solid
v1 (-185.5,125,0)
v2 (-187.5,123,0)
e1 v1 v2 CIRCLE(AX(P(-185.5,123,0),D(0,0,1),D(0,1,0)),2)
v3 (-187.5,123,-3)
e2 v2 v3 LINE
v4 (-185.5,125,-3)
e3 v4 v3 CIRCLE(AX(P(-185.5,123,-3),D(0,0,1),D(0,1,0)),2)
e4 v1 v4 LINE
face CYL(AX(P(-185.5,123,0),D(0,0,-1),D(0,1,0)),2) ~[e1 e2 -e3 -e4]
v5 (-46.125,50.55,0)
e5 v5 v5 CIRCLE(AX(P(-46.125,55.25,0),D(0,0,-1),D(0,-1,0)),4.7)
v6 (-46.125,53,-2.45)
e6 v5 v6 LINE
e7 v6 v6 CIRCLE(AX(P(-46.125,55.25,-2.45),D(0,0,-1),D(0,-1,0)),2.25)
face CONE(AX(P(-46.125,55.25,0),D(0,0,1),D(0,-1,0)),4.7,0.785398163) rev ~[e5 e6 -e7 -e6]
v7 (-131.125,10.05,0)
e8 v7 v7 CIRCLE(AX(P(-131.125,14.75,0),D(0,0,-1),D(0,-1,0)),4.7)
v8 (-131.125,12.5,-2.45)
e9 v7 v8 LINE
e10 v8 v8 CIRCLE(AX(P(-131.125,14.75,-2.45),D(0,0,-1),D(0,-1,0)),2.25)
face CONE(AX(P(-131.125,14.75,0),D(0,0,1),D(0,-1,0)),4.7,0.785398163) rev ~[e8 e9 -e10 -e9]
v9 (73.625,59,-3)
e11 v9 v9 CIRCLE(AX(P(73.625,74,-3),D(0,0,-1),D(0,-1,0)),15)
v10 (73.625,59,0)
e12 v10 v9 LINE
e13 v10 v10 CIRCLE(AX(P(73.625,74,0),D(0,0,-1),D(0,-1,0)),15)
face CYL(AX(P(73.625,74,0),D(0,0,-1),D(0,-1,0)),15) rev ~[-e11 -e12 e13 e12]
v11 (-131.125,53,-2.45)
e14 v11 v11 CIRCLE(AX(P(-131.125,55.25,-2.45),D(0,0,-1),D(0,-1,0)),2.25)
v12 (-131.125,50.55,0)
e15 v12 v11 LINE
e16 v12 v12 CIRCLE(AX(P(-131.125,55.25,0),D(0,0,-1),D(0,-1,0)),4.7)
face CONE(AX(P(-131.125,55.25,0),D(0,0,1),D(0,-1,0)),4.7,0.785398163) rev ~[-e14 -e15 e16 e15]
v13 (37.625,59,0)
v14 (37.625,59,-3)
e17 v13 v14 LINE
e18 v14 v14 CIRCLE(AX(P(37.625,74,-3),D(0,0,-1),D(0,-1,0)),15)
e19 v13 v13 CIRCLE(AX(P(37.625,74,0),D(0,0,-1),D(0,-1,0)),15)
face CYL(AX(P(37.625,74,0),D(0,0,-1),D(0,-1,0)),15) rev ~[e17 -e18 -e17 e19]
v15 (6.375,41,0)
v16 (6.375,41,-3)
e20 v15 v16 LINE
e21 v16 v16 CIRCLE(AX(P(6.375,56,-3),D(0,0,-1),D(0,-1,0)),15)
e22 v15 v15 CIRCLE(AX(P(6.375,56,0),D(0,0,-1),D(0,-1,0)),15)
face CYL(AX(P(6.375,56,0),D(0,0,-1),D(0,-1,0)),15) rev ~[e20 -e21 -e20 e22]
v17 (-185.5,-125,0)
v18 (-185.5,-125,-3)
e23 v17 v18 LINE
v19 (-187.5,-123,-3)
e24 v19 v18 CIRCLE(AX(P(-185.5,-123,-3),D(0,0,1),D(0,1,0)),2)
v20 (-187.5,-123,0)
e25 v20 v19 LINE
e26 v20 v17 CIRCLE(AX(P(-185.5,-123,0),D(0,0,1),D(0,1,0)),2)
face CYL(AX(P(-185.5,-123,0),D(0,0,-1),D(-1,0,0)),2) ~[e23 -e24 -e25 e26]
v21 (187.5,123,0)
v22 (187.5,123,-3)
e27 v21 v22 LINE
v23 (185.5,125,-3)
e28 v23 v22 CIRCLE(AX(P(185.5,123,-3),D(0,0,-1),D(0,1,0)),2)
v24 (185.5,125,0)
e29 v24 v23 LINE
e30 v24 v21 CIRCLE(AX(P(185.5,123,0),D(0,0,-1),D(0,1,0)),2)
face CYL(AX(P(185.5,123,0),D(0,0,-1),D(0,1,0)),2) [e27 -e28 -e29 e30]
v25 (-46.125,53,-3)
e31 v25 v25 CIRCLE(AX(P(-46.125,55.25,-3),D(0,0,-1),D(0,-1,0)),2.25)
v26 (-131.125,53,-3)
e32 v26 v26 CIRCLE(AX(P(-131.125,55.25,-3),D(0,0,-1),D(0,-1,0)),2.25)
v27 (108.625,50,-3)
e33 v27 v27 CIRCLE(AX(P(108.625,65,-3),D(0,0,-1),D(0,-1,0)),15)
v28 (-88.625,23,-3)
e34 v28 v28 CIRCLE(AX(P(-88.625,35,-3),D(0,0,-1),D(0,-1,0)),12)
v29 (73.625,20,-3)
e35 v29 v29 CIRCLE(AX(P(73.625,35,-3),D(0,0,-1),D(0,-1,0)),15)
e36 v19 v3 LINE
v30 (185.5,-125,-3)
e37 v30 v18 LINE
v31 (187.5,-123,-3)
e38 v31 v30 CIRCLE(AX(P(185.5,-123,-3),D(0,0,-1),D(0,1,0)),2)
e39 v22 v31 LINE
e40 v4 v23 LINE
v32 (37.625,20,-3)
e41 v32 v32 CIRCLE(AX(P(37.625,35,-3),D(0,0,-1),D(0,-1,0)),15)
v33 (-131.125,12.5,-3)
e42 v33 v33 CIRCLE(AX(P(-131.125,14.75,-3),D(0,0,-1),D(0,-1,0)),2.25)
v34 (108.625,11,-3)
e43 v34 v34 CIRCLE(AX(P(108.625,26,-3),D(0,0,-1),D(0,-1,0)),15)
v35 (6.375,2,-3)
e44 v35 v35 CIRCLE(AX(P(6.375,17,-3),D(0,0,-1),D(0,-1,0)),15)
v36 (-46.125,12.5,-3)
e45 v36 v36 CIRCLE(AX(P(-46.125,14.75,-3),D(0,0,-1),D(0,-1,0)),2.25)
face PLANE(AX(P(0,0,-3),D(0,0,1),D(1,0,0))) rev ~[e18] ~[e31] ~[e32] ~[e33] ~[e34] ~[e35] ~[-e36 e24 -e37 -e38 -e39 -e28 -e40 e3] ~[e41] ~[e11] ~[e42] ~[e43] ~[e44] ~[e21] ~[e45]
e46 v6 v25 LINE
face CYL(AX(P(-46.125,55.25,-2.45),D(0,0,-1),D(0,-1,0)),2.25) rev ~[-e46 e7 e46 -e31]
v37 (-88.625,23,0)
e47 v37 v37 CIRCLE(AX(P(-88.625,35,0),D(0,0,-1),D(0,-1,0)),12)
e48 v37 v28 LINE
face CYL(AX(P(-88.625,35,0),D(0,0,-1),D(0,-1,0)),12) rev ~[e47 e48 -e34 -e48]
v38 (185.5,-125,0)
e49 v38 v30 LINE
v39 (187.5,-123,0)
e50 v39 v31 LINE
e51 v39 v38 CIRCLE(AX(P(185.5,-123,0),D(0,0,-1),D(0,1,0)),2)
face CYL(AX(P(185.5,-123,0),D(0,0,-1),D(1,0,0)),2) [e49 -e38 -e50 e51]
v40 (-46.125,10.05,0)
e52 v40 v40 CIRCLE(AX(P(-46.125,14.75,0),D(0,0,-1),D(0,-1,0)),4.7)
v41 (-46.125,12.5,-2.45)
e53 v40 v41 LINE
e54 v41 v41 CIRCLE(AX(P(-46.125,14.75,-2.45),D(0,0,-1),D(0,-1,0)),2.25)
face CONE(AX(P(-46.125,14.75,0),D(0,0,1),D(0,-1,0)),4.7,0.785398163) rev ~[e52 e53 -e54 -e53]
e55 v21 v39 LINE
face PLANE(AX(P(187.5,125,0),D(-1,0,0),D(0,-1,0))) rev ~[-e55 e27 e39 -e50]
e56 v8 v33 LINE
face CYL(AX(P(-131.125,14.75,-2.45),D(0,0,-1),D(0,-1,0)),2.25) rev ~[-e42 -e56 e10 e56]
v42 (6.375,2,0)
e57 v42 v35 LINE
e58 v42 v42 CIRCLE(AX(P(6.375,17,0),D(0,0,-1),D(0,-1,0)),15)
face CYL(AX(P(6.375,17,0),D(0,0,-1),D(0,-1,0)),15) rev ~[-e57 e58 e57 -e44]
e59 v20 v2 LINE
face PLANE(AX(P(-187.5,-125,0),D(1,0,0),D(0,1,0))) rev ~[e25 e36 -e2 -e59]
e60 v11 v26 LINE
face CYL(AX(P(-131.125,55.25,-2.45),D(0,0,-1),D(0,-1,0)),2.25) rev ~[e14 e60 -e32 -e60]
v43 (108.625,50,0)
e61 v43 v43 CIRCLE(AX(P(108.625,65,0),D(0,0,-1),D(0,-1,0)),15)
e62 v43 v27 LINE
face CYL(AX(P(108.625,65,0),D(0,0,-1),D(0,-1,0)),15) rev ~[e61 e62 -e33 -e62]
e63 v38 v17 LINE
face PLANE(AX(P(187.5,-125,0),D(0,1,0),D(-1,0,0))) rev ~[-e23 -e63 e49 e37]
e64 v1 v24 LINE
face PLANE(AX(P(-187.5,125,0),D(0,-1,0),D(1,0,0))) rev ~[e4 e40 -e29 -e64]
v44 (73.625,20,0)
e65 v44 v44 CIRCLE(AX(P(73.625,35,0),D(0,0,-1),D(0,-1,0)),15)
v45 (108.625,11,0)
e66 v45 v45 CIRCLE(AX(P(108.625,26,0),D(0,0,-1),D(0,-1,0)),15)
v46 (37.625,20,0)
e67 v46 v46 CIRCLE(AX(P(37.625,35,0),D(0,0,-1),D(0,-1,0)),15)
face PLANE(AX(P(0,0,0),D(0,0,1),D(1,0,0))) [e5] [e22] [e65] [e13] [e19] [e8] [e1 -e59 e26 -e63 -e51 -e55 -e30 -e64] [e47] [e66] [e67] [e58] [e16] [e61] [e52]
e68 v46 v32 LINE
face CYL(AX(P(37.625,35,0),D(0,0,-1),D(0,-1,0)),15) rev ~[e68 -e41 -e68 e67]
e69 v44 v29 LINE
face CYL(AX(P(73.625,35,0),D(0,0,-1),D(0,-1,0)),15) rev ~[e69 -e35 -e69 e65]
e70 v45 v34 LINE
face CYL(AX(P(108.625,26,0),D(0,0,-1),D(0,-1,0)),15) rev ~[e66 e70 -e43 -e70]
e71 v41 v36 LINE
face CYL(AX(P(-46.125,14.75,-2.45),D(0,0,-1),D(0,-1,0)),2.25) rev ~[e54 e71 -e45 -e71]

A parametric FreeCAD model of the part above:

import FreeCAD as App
import Part
import Sketcher
Q = App.Units.Quantity


def edges_at(feature, points):
    """Names of the edges that pass closest to the given points."""
    edges = feature.Shape.Edges
    near = lambda p: min(range(len(edges)), key=lambda i: edges[i].distToShape(Part.Vertex(*p))[0])
    return sorted({f"Edge{near(p) + 1}" for p in points})


def add_polygon(sketch, points):
    """Adds a closed chain of lines whose ends are joined by coincident constraints."""
    first, n = sketch.GeometryCount, len(points)
    for a, b in zip(points, points[1:] + points[:1]):
        sketch.addGeometry(Part.LineSegment(App.Vector(*a, 0), App.Vector(*b, 0)), False)
    for i in range(n):
        sketch.addConstraint(Sketcher.Constraint("Coincident", first + i, 2, first + (i + 1) % n, 1))

doc = App.newDocument("Part")
body = doc.addObject("PartDesign::Body", "Body")

sketch1 = doc.addObject("Sketcher::SketchObject", "Sketch")
body.addObject(sketch1)
sketch1.AttachmentSupport = (doc.XY_Plane, [""])
sketch1.MapMode = "FlatFace"
add_polygon(sketch1, [(188, 125), (-188, 125), (-188, -125), (188, -125)])
sketch1.addConstraint(Sketcher.Constraint("Horizontal", 0))
sketch1.addConstraint(Sketcher.Constraint("Vertical", 1))
sketch1.addConstraint(Sketcher.Constraint("Horizontal", 2))
sketch1.addConstraint(Sketcher.Constraint("Vertical", 3))
sketch1.addConstraint(Sketcher.Constraint("Symmetric", 0, 2, 2, 2, -1, 1))
sketch1.addConstraint(Sketcher.Constraint("DistanceX", 0, 2, 0, 1, Q("375 mm")))
sketch1.addConstraint(Sketcher.Constraint("DistanceY", 1, 2, 1, 1, Q("250 mm")))
pad1 = doc.addObject("PartDesign::Pad", "Pad")
body.addObject(pad1)
pad1.Profile = sketch1
pad1.Length = 3
pad1.Reversed = True

sketch2 = doc.addObject("Sketcher::SketchObject", "Sketch001")
body.addObject(sketch2)
sketch2.AttachmentSupport = (doc.XY_Plane, [""])
sketch2.MapMode = "FlatFace"
sketch2.addGeometry(Part.Circle(App.Vector(-46.1, 14.8, 0), App.Vector(0, 0, 1), 2.2), False)
sketch2.addGeometry(Part.Circle(App.Vector(-46.1, 55.2, 0), App.Vector(0, 0, 1), 2.2), False)
sketch2.addGeometry(Part.Circle(App.Vector(-131.1, 55.2, 0), App.Vector(0, 0, 1), 2.2), False)
sketch2.addGeometry(Part.Circle(App.Vector(-131.1, 14.8, 0), App.Vector(0, 0, 1), 2.2), False)
sketch2.addConstraint(Sketcher.Constraint("Equal", 0, 1))
sketch2.addConstraint(Sketcher.Constraint("Equal", 1, 2))
sketch2.addConstraint(Sketcher.Constraint("Equal", 2, 3))
sketch2.addConstraint(Sketcher.Constraint("Horizontal", 1, 3, 2, 3))
sketch2.addConstraint(Sketcher.Constraint("Horizontal", 0, 3, 3, 3))
sketch2.addConstraint(Sketcher.Constraint("Vertical", 0, 3, 1, 3))
sketch2.addConstraint(Sketcher.Constraint("Vertical", 2, 3, 3, 3))
sketch2.addConstraint(Sketcher.Constraint("Diameter", 0, Q("4.5 mm")))
sketch2.addConstraint(Sketcher.Constraint("DistanceX", 2, 3, 1, 3, Q("85 mm")))
sketch2.addConstraint(Sketcher.Constraint("DistanceY", 0, 3, 1, 3, Q("40.5 mm")))
sketch2.addConstraint(Sketcher.Constraint("DistanceY", -1, 1, 0, 3, Q("14.75 mm")))
sketch2.addConstraint(Sketcher.Constraint("DistanceX", 0, 3, -1, 1, Q("46.125 mm")))
doc.recompute()
hole = doc.addObject("PartDesign::Hole", "Hole")
body.addObject(hole)
hole.Profile = sketch2
hole.ThreadType = "None"
hole.Diameter = 4.5
hole.DepthType = "ThroughAll"
hole.HoleCutType = "Countersink"
hole.HoleCutDiameter = 9.4
hole.HoleCutCountersinkAngle = 90

sketch3 = doc.addObject("Sketcher::SketchObject", "Sketch002")
body.addObject(sketch3)
sketch3.AttachmentSupport = (doc.XY_Plane, [""])
sketch3.MapMode = "FlatFace"
sketch3.addGeometry(Part.Circle(App.Vector(-89, 35, 0), App.Vector(0, 0, 1), 12), False)
sketch3.addConstraint(Sketcher.Constraint("Diameter", 0, Q("24 mm")))
sketch3.addConstraint(Sketcher.Constraint("DistanceY", -1, 1, 0, 3, Q("35 mm")))
sketch3.addConstraint(Sketcher.Constraint("DistanceX", 0, 3, -1, 1, Q("88.625 mm")))
doc.recompute()
hole2 = doc.addObject("PartDesign::Hole", "Hole001")
body.addObject(hole2)
hole2.Profile = sketch3
hole2.ThreadType = "None"
hole2.Diameter = 24
hole2.DepthType = "ThroughAll"

sketch4 = doc.addObject("Sketcher::SketchObject", "Sketch003")
body.addObject(sketch4)
sketch4.AttachmentSupport = (doc.XY_Plane, [""])
sketch4.MapMode = "FlatFace"
sketch4.addGeometry(Part.Circle(App.Vector(109, 26, 0), App.Vector(0, 0, 1), 15), False)
sketch4.addGeometry(Part.Circle(App.Vector(74, 35, 0), App.Vector(0, 0, 1), 15), False)
sketch4.addGeometry(Part.Circle(App.Vector(74, 74, 0), App.Vector(0, 0, 1), 15), False)
sketch4.addGeometry(Part.Circle(App.Vector(109, 65, 0), App.Vector(0, 0, 1), 15), False)
sketch4.addGeometry(Part.Circle(App.Vector(38, 74, 0), App.Vector(0, 0, 1), 15), False)
sketch4.addGeometry(Part.Circle(App.Vector(38, 35, 0), App.Vector(0, 0, 1), 15), False)
sketch4.addGeometry(Part.Circle(App.Vector(6, 56, 0), App.Vector(0, 0, 1), 15), False)
sketch4.addGeometry(Part.Circle(App.Vector(6, 17, 0), App.Vector(0, 0, 1), 15), False)
sketch4.addConstraint(Sketcher.Constraint("Equal", 0, 1))
sketch4.addConstraint(Sketcher.Constraint("Equal", 1, 2))
sketch4.addConstraint(Sketcher.Constraint("Equal", 2, 3))
sketch4.addConstraint(Sketcher.Constraint("Equal", 3, 4))
sketch4.addConstraint(Sketcher.Constraint("Equal", 4, 5))
sketch4.addConstraint(Sketcher.Constraint("Equal", 5, 6))
sketch4.addConstraint(Sketcher.Constraint("Equal", 6, 7))
sketch4.addConstraint(Sketcher.Constraint("Horizontal", 2, 3, 4, 3))
sketch4.addConstraint(Sketcher.Constraint("Horizontal", 1, 3, 5, 3))
sketch4.addConstraint(Sketcher.Constraint("Vertical", 1, 3, 2, 3))
sketch4.addConstraint(Sketcher.Constraint("Vertical", 0, 3, 3, 3))
sketch4.addConstraint(Sketcher.Constraint("Vertical", 4, 3, 5, 3))
sketch4.addConstraint(Sketcher.Constraint("Vertical", 6, 3, 7, 3))
sketch4.addConstraint(Sketcher.Constraint("Diameter", 0, Q("30 mm")))
sketch4.addConstraint(Sketcher.Constraint("DistanceY", -1, 1, 0, 3, Q("26 mm")))
sketch4.addConstraint(Sketcher.Constraint("DistanceY", -1, 1, 1, 3, Q("35 mm")))
sketch4.addConstraint(Sketcher.Constraint("DistanceY", -1, 1, 2, 3, Q("74 mm")))
sketch4.addConstraint(Sketcher.Constraint("DistanceY", -1, 1, 3, 3, Q("65 mm")))
sketch4.addConstraint(Sketcher.Constraint("DistanceY", -1, 1, 6, 3, Q("56 mm")))
sketch4.addConstraint(Sketcher.Constraint("DistanceY", -1, 1, 7, 3, Q("17 mm")))
sketch4.addConstraint(Sketcher.Constraint("DistanceX", 1, 3, 0, 3, Q("35 mm")))
sketch4.addConstraint(Sketcher.Constraint("DistanceX", 4, 3, 2, 3, Q("36 mm")))
sketch4.addConstraint(Sketcher.Constraint("DistanceX", 6, 3, 4, 3, Q("31.25 mm")))
sketch4.addConstraint(Sketcher.Constraint("DistanceX", -1, 1, 0, 3, Q("108.625 mm")))
doc.recompute()
hole3 = doc.addObject("PartDesign::Hole", "Hole002")
body.addObject(hole3)
hole3.Profile = sketch4
hole3.ThreadType = "None"
hole3.Diameter = 30
hole3.DepthType = "ThroughAll"
doc.recompute()

fillet = doc.addObject("PartDesign::Fillet", "Fillet")
body.addObject(fillet)
fillet.Base = (hole3, edges_at(hole3, [
    (187.5, 125, -1.5),
    (187.5, -125, -1.5),
    (-187.5, 125, -1.5),
    (-187.5, -125, -1.5),
]))
fillet.Radius = 2

doc.recompute()
